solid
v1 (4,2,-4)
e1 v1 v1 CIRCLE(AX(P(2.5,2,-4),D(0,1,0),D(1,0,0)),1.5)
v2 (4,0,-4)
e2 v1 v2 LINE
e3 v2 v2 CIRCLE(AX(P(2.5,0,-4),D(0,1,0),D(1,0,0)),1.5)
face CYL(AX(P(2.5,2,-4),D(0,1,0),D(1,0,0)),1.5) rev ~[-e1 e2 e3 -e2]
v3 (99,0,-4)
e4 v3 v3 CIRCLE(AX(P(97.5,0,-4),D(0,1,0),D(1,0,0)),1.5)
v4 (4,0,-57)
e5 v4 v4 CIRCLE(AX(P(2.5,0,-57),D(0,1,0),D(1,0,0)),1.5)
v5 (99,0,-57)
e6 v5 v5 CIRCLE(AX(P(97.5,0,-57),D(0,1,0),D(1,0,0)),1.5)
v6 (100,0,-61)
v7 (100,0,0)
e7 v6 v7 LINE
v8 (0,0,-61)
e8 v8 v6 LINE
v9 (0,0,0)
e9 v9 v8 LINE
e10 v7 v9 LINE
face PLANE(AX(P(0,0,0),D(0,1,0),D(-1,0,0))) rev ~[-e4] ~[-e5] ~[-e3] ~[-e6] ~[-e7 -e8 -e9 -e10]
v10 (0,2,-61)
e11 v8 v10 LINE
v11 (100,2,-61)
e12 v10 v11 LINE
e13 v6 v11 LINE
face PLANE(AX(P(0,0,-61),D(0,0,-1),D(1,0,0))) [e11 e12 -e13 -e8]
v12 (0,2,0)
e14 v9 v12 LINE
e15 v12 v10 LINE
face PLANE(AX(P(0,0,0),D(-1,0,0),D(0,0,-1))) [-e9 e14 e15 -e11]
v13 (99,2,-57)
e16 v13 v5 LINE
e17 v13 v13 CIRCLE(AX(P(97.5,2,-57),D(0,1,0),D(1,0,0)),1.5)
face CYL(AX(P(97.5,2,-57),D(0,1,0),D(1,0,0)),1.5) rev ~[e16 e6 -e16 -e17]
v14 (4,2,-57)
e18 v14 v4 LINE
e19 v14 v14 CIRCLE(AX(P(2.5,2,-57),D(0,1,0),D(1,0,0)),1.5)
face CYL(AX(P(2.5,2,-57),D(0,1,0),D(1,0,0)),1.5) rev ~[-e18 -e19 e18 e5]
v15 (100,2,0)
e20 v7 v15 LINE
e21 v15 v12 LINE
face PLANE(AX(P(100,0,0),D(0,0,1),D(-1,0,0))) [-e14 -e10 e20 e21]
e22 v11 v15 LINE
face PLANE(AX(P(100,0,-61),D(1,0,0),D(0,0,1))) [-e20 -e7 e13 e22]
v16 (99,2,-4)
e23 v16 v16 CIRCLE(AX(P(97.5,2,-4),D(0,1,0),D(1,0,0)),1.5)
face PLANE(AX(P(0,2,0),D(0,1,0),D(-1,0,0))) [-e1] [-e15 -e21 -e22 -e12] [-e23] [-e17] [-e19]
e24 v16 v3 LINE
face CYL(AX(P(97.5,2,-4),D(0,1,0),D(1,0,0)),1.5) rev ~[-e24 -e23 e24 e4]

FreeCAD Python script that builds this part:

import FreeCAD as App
import Part
import Sketcher

V = App.Vector
Q = App.Units.Quantity

doc = App.newDocument("Part")
body = doc.addObject("PartDesign::Body", "Body")

sketch1 = doc.addObject("Sketcher::SketchObject", "Sketch")
body.addObject(sketch1)
sketch1.AttachmentSupport = (doc.XZ_Plane, [""])
sketch1.MapMode = "FlatFace"
sketch1.addGeometry(Part.LineSegment(V(100, -61, 0), V(0, -61, 0)), False)
sketch1.addGeometry(Part.LineSegment(V(0, -61, 0), V(0, 0, 0)), False)
sketch1.addGeometry(Part.LineSegment(V(0, 0, 0), V(100, 0, 0)), False)
sketch1.addGeometry(Part.LineSegment(V(100, 0, 0), V(100, -61, 0)), False)
sketch1.addConstraint(Sketcher.Constraint("Coincident", 0, 2, 1, 1))
sketch1.addConstraint(Sketcher.Constraint("Coincident", 1, 2, 2, 1))
sketch1.addConstraint(Sketcher.Constraint("Coincident", 2, 2, 3, 1))
sketch1.addConstraint(Sketcher.Constraint("Coincident", 3, 2, 0, 1))
sketch1.addConstraint(Sketcher.Constraint("Horizontal", 0))
sketch1.addConstraint(Sketcher.Constraint("Vertical", 1))
sketch1.addConstraint(Sketcher.Constraint("Horizontal", 2))
sketch1.addConstraint(Sketcher.Constraint("Vertical", 3))
sketch1.addConstraint(Sketcher.Constraint("Coincident", 1, 2, -1, 1))
sketch1.addConstraint(Sketcher.Constraint("DistanceX", 0, 2, 0, 1, Q("100 mm")))
sketch1.addConstraint(Sketcher.Constraint("DistanceY", 1, 1, 1, 2, Q("61 mm")))
pad1 = doc.addObject("PartDesign::Pad", "Pad")
body.addObject(pad1)
pad1.Profile = sketch1
pad1.Length = 2
pad1.Reversed = True

sketch2 = doc.addObject("Sketcher::SketchObject", "Sketch001")
body.addObject(sketch2)
sketch2.AttachmentSupport = (doc.XZ_Plane, [""])
sketch2.MapMode = "FlatFace"
sketch2.AttachmentOffset = App.Placement(V(0, 0, -2), App.Rotation())
sketch2.addGeometry(Part.Circle(V(97.5, -57, 0), V(0, 0, 1), 1.5), False)
sketch2.addGeometry(Part.Circle(V(97.5, -4, 0), V(0, 0, 1), 1.5), False)
sketch2.addGeometry(Part.Circle(V(2.5, -4, 0), V(0, 0, 1), 1.5), False)
sketch2.addGeometry(Part.Circle(V(2.5, -57, 0), V(0, 0, 1), 1.5), False)
sketch2.addConstraint(Sketcher.Constraint("Equal", 0, 1))
sketch2.addConstraint(Sketcher.Constraint("Equal", 1, 2))
sketch2.addConstraint(Sketcher.Constraint("Equal", 2, 3))
sketch2.addConstraint(Sketcher.Constraint("Horizontal", 1, 3, 2, 3))
sketch2.addConstraint(Sketcher.Constraint("Horizontal", 0, 3, 3, 3))
sketch2.addConstraint(Sketcher.Constraint("Vertical", 0, 3, 1, 3))
sketch2.addConstraint(Sketcher.Constraint("Vertical", 2, 3, 3, 3))
sketch2.addConstraint(Sketcher.Constraint("Diameter", 0, Q("3 mm")))
sketch2.addConstraint(Sketcher.Constraint("DistanceY", 1, 3, -1, 1, Q("4 mm")))
sketch2.addConstraint(Sketcher.Constraint("DistanceX", -1, 1, 2, 3, Q("2.5 mm")))
sketch2.addConstraint(Sketcher.Constraint("DistanceY", 0, 3, -1, 1, Q("57 mm")))
sketch2.addConstraint(Sketcher.Constraint("DistanceX", 2, 3, 1, 3, Q("95 mm")))
pocket1 = doc.addObject("PartDesign::Pocket", "Pocket")
body.addObject(pocket1)
pocket1.Profile = sketch2
pocket1.Length = 4
pocket1.Reversed = True

doc.recompute()
